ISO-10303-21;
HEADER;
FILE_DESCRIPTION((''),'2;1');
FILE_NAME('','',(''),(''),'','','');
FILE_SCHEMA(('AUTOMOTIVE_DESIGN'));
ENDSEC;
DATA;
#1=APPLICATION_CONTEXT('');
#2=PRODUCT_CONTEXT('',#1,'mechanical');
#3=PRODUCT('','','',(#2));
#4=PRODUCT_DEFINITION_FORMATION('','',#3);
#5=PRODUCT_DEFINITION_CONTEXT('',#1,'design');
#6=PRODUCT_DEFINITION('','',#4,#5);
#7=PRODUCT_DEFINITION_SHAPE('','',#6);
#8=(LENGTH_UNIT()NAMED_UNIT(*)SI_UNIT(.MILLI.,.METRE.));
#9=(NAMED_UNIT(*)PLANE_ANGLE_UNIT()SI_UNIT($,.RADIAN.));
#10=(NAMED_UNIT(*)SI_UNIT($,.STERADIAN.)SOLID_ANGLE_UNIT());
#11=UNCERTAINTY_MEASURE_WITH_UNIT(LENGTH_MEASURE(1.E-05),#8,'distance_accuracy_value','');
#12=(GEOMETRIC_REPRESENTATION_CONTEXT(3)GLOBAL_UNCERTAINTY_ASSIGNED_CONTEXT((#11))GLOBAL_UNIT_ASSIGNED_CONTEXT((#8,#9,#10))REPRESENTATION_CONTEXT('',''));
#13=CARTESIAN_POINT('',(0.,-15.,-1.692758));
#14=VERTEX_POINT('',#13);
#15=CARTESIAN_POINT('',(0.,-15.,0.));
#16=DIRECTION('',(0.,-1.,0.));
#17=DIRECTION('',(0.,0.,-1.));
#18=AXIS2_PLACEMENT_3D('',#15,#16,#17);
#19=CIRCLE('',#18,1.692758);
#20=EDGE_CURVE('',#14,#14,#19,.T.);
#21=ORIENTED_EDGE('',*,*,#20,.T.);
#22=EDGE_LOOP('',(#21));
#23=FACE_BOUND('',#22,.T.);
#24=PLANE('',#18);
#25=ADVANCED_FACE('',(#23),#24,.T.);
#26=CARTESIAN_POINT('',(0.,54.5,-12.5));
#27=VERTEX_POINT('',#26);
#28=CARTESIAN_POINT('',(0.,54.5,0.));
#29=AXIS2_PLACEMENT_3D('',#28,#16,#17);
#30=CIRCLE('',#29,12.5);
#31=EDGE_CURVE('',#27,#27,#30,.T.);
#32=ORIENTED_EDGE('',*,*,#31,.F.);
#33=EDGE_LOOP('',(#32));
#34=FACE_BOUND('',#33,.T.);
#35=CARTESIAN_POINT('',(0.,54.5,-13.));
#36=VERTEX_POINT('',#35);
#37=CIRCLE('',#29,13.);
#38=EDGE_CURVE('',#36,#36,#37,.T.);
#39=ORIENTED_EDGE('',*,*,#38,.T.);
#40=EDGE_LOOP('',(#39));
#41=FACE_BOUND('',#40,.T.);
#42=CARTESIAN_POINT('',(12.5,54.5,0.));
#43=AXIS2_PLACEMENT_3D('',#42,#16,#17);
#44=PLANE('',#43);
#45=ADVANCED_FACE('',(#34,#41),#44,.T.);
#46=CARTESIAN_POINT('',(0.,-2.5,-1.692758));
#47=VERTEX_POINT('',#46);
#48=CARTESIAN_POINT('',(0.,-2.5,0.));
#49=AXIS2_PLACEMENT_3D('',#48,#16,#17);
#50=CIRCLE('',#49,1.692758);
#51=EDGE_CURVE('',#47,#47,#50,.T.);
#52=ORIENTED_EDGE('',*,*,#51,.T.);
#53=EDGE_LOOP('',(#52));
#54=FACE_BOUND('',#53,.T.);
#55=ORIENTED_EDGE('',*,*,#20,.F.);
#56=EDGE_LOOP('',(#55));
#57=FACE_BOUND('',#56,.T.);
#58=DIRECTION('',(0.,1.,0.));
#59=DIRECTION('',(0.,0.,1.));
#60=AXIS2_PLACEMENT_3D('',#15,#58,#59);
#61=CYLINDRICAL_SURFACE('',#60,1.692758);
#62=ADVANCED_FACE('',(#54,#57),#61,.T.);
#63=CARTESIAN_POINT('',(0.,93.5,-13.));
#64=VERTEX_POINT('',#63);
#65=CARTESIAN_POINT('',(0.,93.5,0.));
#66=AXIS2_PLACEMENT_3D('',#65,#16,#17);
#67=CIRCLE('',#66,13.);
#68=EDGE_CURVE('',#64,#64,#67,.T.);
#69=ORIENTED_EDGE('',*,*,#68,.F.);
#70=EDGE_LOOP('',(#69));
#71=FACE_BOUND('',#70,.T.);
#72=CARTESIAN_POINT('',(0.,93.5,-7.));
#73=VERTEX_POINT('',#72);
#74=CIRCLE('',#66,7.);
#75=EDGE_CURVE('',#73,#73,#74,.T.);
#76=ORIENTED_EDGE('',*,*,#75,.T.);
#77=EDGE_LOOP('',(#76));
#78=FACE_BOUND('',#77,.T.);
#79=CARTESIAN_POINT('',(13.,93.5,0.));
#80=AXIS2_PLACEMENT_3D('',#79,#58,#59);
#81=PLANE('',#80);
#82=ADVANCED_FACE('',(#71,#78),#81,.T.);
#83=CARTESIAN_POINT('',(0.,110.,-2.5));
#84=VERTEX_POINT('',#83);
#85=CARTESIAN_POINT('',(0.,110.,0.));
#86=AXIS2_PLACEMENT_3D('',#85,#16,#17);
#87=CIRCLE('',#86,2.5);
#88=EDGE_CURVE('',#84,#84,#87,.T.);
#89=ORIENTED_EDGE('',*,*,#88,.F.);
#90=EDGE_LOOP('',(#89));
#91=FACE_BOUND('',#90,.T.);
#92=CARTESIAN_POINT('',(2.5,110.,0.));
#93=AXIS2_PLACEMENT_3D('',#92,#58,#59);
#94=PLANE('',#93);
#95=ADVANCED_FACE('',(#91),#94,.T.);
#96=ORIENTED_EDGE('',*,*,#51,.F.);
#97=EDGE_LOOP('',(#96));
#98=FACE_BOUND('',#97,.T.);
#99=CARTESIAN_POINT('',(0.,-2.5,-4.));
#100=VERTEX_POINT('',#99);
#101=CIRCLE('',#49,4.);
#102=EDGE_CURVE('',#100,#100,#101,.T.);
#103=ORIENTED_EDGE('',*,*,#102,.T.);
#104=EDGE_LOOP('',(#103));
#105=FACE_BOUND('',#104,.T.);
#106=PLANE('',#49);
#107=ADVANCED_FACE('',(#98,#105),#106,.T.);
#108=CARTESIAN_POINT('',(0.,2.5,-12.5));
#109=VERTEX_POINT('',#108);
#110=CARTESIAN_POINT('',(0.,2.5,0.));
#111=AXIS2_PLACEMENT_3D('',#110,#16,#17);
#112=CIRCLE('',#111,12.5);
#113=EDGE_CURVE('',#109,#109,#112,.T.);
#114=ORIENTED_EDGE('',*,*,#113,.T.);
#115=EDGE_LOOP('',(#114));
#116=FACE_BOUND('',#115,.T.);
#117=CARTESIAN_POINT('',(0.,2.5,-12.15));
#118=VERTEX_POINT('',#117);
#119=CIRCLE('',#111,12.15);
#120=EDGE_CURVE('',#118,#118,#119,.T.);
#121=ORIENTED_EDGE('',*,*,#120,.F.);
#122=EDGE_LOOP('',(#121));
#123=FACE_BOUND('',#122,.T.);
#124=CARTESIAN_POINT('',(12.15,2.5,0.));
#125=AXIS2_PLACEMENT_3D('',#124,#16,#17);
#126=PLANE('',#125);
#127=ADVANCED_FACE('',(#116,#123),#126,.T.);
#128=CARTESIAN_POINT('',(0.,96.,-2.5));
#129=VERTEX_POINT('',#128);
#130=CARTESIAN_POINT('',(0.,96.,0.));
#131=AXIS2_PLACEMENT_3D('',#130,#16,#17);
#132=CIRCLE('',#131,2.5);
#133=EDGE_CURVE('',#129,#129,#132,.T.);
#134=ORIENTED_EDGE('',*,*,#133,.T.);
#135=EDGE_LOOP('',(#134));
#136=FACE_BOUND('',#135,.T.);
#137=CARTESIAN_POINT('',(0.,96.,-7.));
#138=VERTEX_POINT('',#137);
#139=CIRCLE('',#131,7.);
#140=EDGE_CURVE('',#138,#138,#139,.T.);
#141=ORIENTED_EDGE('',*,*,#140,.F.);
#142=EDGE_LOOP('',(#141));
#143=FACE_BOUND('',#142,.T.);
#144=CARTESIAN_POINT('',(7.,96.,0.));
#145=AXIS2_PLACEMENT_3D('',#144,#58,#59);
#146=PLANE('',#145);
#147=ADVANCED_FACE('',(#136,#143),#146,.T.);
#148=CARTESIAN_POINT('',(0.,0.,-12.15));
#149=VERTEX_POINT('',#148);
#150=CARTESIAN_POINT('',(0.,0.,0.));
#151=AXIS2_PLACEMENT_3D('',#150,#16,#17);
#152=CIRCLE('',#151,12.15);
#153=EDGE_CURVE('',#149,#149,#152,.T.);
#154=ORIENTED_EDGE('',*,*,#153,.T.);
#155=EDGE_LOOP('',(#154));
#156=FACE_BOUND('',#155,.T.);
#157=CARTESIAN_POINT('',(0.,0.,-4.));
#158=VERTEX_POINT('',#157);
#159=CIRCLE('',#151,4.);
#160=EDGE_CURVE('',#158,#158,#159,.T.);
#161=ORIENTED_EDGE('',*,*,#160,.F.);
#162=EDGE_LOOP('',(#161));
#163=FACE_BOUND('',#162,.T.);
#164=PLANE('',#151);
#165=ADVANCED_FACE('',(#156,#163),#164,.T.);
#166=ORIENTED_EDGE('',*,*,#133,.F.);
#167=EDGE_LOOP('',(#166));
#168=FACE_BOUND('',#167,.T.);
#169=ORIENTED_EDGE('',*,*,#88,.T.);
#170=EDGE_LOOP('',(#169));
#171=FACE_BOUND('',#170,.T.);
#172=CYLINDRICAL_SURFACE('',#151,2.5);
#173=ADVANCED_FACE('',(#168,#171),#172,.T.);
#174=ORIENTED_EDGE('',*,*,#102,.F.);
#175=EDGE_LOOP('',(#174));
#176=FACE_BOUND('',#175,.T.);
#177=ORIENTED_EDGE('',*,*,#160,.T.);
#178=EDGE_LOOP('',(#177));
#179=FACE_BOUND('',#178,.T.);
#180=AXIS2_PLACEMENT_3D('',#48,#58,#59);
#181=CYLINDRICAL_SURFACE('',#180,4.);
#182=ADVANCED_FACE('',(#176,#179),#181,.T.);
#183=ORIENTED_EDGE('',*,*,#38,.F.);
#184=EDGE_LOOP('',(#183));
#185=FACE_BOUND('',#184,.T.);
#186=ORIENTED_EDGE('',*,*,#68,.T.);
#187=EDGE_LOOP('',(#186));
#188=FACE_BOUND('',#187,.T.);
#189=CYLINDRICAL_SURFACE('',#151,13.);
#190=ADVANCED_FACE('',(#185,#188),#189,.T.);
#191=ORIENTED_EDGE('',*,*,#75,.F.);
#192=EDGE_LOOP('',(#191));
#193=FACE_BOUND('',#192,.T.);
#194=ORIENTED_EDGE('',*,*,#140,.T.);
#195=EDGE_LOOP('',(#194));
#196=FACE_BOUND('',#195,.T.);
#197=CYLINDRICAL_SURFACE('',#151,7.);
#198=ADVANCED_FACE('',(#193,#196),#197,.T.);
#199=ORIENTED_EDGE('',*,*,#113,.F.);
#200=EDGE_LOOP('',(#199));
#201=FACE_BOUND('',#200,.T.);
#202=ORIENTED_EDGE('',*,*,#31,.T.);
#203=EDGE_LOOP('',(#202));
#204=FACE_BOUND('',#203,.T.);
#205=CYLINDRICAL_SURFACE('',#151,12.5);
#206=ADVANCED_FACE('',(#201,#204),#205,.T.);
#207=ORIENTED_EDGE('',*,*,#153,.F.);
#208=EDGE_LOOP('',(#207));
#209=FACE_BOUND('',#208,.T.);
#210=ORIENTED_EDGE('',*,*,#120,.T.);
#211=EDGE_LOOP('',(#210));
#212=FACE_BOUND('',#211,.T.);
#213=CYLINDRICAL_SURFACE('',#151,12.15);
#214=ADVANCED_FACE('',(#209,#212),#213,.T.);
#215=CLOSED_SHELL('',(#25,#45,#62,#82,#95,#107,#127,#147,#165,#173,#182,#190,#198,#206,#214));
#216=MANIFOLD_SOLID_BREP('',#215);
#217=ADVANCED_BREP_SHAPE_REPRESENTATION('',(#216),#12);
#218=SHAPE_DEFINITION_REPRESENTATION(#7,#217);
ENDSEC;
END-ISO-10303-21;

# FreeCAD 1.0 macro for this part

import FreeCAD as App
import Part
import Sketcher
from FreeCAD import Vector

doc = App.newDocument("Part")
body = doc.addObject("PartDesign::Body", "Body")

# Sketch on XY plane
sketch1 = doc.addObject("Sketcher::SketchObject", "Sketch")
body.addObject(sketch1)
sketch1.AttachmentSupport = (doc.XY_Plane, [""])
sketch1.MapMode = "FlatFace"
sketch1.addGeometry([
    Part.LineSegment(Vector(0, 0, 0), Vector(12.15, 0, 0)),  # 0
    Part.LineSegment(Vector(12.15, 0, 0), Vector(12.15, 2.5, 0)),  # 1
    Part.LineSegment(Vector(12.15, 2.5, 0), Vector(12.5, 2.5, 0)),  # 2
    Part.LineSegment(Vector(12.5, 2.5, 0), Vector(12.5, 54.5, 0)),  # 3
    Part.LineSegment(Vector(12.5, 54.5, 0), Vector(13, 54.5, 0)),  # 4
    Part.LineSegment(Vector(13, 54.5, 0), Vector(13, 93.5, 0)),  # 5
    Part.LineSegment(Vector(13, 93.5, 0), Vector(7, 93.5, 0)),  # 6
    Part.LineSegment(Vector(7, 93.5, 0), Vector(7, 96, 0)),  # 7
    Part.LineSegment(Vector(7, 96, 0), Vector(2.5, 96, 0)),  # 8
    Part.LineSegment(Vector(2.5, 96, 0), Vector(2.5, 110, 0)),  # 9
    Part.LineSegment(Vector(2.5, 110, 0), Vector(0, 110, 0)),  # 10
    Part.LineSegment(Vector(0, 110, 0), Vector(0, 0, 0)),  # 11
], False)
sketch1.addConstraint([
    Sketcher.Constraint("Coincident", 0, 2, 1, 1),
    Sketcher.Constraint("Coincident", 1, 2, 2, 1),
    Sketcher.Constraint("Coincident", 2, 2, 3, 1),
    Sketcher.Constraint("Coincident", 3, 2, 4, 1),
    Sketcher.Constraint("Coincident", 4, 2, 5, 1),
    Sketcher.Constraint("Coincident", 5, 2, 6, 1),
    Sketcher.Constraint("Coincident", 6, 2, 7, 1),
    Sketcher.Constraint("Coincident", 7, 2, 8, 1),
    Sketcher.Constraint("Coincident", 8, 2, 9, 1),
    Sketcher.Constraint("Coincident", 9, 2, 10, 1),
    Sketcher.Constraint("Coincident", 10, 2, 11, 1),
    Sketcher.Constraint("Coincident", 11, 2, 0, 1),
    Sketcher.Constraint("Horizontal", 0),
    Sketcher.Constraint("Vertical", 1),
    Sketcher.Constraint("Horizontal", 2),
    Sketcher.Constraint("Vertical", 3),
    Sketcher.Constraint("Horizontal", 4),
    Sketcher.Constraint("Vertical", 5),
    Sketcher.Constraint("Horizontal", 6),
    Sketcher.Constraint("Vertical", 7),
    Sketcher.Constraint("Horizontal", 8),
    Sketcher.Constraint("Vertical", 9),
    Sketcher.Constraint("Horizontal", 10),
    Sketcher.Constraint("Vertical", 11),
    Sketcher.Constraint("Coincident", 11, 2, -1, 1),
    Sketcher.Constraint("Equal", 10, 1),
    Sketcher.Constraint("Equal", 1, 7),
    Sketcher.Constraint("DistanceX", 6, 2, 6, 1, 6.0),
    Sketcher.Constraint("DistanceY", 3, 1, 3, 2, 52.0),
    Sketcher.Constraint("DistanceY", 5, 1, 5, 2, 39.0),
    Sketcher.Constraint("DistanceY", 9, 1, 9, 2, 14.0),
    Sketcher.Constraint("DistanceY", 11, 2, 11, 1, 110.0),
    Sketcher.Constraint("DistanceX", 4, 1, 4, 2, 0.5),
    Sketcher.Constraint("DistanceX", 8, 2, 8, 1, 4.5),
    Sketcher.Constraint("DistanceX", 0, 1, 0, 2, 12.15),
])
revolution = doc.addObject("PartDesign::Revolution", "Revolution")
body.addObject(revolution)
revolution.Profile = sketch1
revolution.ReferenceAxis = (sketch1, ["V_Axis"])
revolution.Angle = 360

# Sketch on XZ plane
sketch2 = doc.addObject("Sketcher::SketchObject", "Sketch001")
body.addObject(sketch2)
sketch2.AttachmentSupport = (doc.XZ_Plane, [""])
sketch2.MapMode = "FlatFace"
sketch2.addGeometry(Part.Circle(Vector(0, 0, 0), Vector(0, 0, 1), 1.7), False)
sketch2.addConstraint([
    Sketcher.Constraint("Coincident", 0, 3, -1, 1),
    Sketcher.Constraint("Diameter", 0, 3.385516),
])
pad1 = doc.addObject("PartDesign::Pad", "Pad")
body.addObject(pad1)
pad1.Profile = sketch2
pad1.Length = 15

# Sketch on XZ plane
sketch3 = doc.addObject("Sketcher::SketchObject", "Sketch002")
body.addObject(sketch3)
sketch3.AttachmentSupport = (doc.XZ_Plane, [""])
sketch3.MapMode = "FlatFace"
sketch3.addGeometry(Part.Circle(Vector(0, 0, 0), Vector(0, 0, 1), 4), False)
sketch3.addConstraint([
    Sketcher.Constraint("Coincident", 0, 3, -1, 1),
    Sketcher.Constraint("Diameter", 0, 8.0),
])
pad2 = doc.addObject("PartDesign::Pad", "Pad001")
body.addObject(pad2)
pad2.Profile = sketch3
pad2.Length = 2.5

doc.recompute()
